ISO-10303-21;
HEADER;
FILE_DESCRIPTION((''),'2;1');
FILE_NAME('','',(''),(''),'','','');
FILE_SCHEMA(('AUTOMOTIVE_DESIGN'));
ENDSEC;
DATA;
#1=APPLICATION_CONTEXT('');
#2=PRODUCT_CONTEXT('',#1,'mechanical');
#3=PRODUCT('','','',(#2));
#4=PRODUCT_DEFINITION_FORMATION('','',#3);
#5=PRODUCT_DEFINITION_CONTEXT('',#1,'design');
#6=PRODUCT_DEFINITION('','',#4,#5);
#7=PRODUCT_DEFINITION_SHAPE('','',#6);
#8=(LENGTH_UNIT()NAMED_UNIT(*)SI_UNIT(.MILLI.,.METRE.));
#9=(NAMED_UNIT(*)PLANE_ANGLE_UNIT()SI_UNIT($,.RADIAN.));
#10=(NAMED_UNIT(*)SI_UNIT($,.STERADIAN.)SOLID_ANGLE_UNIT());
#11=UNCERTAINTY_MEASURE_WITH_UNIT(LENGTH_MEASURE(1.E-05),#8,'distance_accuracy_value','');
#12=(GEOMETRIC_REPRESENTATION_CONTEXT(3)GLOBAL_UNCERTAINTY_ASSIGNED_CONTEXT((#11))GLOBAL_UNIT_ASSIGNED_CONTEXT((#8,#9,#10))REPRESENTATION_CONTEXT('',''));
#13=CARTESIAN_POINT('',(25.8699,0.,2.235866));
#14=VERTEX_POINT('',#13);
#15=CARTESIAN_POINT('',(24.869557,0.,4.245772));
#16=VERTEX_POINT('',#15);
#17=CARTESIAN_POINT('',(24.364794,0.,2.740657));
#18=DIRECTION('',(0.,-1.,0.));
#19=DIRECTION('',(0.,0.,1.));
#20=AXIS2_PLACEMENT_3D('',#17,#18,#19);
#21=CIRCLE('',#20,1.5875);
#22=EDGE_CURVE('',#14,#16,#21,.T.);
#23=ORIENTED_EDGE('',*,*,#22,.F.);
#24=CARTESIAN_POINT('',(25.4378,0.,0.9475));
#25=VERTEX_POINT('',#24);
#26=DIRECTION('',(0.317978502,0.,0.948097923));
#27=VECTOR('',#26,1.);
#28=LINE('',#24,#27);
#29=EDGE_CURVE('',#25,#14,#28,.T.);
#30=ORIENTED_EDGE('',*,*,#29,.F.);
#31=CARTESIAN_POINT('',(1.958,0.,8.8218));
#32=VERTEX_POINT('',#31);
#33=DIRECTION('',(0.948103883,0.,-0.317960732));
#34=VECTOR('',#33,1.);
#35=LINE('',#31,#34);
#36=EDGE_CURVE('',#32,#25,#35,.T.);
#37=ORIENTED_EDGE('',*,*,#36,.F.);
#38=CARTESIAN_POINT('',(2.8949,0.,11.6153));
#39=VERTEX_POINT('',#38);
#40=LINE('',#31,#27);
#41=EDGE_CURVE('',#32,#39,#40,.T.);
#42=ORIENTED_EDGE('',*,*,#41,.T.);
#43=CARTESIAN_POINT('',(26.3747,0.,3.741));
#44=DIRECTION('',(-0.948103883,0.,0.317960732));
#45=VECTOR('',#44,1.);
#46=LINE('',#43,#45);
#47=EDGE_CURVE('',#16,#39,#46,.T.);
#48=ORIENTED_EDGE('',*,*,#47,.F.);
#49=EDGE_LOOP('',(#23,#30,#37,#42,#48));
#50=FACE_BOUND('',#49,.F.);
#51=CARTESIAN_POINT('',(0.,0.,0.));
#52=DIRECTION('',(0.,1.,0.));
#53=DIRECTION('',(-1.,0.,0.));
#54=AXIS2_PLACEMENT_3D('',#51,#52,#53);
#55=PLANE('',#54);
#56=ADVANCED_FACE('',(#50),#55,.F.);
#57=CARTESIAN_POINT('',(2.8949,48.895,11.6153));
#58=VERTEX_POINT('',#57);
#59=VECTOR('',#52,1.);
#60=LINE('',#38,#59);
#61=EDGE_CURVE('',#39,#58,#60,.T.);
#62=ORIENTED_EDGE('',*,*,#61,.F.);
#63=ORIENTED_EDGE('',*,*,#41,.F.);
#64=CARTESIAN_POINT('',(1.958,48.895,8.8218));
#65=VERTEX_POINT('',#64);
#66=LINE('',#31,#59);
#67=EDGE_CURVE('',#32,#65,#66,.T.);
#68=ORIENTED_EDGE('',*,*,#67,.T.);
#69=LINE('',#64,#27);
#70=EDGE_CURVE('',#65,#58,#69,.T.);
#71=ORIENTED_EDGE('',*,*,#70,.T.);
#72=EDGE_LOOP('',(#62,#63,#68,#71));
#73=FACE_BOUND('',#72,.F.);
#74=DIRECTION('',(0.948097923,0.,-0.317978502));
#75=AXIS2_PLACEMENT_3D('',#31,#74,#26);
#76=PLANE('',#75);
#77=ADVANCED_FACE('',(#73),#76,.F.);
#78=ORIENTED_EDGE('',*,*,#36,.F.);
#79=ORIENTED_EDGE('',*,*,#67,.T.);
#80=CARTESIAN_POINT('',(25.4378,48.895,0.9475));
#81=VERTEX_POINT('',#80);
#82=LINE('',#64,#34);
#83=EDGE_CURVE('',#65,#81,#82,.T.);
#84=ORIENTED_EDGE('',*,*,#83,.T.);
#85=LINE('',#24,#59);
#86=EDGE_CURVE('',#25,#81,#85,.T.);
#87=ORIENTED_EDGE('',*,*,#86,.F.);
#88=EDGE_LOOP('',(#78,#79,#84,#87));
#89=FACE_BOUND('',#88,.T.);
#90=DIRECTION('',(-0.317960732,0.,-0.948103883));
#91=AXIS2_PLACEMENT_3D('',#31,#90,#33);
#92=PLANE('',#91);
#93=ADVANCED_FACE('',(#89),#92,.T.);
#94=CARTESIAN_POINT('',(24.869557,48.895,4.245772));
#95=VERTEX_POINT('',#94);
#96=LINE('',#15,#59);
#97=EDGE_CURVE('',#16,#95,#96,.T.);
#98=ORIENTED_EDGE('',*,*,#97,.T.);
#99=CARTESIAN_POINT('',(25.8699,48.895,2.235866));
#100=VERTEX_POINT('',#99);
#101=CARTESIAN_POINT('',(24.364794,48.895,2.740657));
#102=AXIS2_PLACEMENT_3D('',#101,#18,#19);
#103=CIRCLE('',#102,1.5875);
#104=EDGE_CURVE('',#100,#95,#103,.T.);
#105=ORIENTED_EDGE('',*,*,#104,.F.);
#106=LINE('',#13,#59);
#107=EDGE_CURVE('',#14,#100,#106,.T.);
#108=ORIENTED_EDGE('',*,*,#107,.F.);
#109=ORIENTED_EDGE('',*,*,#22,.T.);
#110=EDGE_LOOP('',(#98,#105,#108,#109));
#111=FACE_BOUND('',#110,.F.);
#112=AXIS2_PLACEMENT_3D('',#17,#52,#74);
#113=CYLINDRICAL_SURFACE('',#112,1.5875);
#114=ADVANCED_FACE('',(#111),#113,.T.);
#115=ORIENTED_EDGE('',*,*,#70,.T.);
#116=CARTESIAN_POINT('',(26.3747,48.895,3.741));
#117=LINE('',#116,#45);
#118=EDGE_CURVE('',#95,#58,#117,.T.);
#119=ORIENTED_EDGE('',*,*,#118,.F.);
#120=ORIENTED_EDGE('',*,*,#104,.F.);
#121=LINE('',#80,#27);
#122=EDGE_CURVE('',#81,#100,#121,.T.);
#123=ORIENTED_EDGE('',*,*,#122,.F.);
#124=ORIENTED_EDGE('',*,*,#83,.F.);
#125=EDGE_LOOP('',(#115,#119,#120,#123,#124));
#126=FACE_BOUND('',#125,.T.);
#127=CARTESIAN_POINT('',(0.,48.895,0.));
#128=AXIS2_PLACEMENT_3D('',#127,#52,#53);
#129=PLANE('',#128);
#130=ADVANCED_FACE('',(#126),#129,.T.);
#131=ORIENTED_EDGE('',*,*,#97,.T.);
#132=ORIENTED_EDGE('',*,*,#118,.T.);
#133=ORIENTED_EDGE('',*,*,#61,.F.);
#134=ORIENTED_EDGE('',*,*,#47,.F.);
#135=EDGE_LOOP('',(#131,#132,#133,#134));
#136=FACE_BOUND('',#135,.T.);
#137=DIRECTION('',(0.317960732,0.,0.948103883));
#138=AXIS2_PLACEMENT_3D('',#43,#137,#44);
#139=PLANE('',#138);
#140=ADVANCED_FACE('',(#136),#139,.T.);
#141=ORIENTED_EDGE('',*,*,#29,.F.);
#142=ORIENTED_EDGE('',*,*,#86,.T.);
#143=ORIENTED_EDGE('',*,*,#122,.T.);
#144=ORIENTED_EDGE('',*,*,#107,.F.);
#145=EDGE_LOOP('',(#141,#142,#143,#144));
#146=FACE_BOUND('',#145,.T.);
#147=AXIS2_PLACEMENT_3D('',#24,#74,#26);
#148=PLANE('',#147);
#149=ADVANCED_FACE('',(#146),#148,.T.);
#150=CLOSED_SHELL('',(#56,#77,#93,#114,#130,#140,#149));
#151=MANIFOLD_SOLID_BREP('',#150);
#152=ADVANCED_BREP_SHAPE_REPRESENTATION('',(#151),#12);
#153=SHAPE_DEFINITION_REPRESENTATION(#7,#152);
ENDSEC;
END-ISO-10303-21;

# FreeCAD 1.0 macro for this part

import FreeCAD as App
import Part
import Sketcher
from FreeCAD import Vector
Q = App.Units.Quantity


def edges_at(feature, points):
    """Names of the edges that pass closest to the given points."""
    edges = feature.Shape.Edges
    near = lambda p: min(range(len(edges)), key=lambda i: edges[i].distToShape(Part.Vertex(*p))[0])
    return sorted({f"Edge{near(p) + 1}" for p in points})


def add_polygon(sketch, points):
    """Adds a closed chain of lines whose ends are joined by coincident constraints."""
    first, n = sketch.GeometryCount, len(points)
    for a, b in zip(points, points[1:] + points[:1]):
        sketch.addGeometry(Part.LineSegment(App.Vector(*a, 0), App.Vector(*b, 0)), False)
    for i in range(n):
        sketch.addConstraint(Sketcher.Constraint("Coincident", first + i, 2, first + (i + 1) % n, 1))

doc = App.newDocument("Part")
body = doc.addObject("PartDesign::Body", "Body")

sketch1 = body.newObject("Sketcher::SketchObject", "Sketch")
sketch1.AttachmentSupport = (doc.getObject("XZ_Plane"), [""])
sketch1.MapMode = "FlatFace"
add_polygon(sketch1, [(25.4, 0.9), (2, 8.8), (2.9, 11.6), (26.4, 3.7)])
sketch1.addConstraint([
    Sketcher.Constraint("Perpendicular", 0, 1),
    Sketcher.Constraint("Perpendicular", 1, 2),
    Sketcher.Constraint("Perpendicular", 2, 3),
    Sketcher.Constraint("Distance", 0, Q("0.975 in")),
    Sketcher.Constraint("Distance", 1, Q("0.116 in")),
    Sketcher.Constraint("Angle", 0, Q("161.4604 deg")),
    Sketcher.Constraint("DistanceY", -1, 1, 1, 2, Q("0.4573 in")),
    Sketcher.Constraint("DistanceX", -1, 1, 3, 2, Q("1.0015 in")),
])
pad1 = body.newObject("PartDesign::Pad", "Pad")
pad1.Profile = sketch1
pad1.Length = Q("1.925 in")
pad1.Reversed = True
doc.recompute()

fillet = body.newObject("PartDesign::Fillet", "Fillet")
fillet.Base = (pad1, edges_at(pad1, [(26.375, 24.448, 3.741)]))
fillet.Radius = Q("0.0625 in")

doc.recompute()
